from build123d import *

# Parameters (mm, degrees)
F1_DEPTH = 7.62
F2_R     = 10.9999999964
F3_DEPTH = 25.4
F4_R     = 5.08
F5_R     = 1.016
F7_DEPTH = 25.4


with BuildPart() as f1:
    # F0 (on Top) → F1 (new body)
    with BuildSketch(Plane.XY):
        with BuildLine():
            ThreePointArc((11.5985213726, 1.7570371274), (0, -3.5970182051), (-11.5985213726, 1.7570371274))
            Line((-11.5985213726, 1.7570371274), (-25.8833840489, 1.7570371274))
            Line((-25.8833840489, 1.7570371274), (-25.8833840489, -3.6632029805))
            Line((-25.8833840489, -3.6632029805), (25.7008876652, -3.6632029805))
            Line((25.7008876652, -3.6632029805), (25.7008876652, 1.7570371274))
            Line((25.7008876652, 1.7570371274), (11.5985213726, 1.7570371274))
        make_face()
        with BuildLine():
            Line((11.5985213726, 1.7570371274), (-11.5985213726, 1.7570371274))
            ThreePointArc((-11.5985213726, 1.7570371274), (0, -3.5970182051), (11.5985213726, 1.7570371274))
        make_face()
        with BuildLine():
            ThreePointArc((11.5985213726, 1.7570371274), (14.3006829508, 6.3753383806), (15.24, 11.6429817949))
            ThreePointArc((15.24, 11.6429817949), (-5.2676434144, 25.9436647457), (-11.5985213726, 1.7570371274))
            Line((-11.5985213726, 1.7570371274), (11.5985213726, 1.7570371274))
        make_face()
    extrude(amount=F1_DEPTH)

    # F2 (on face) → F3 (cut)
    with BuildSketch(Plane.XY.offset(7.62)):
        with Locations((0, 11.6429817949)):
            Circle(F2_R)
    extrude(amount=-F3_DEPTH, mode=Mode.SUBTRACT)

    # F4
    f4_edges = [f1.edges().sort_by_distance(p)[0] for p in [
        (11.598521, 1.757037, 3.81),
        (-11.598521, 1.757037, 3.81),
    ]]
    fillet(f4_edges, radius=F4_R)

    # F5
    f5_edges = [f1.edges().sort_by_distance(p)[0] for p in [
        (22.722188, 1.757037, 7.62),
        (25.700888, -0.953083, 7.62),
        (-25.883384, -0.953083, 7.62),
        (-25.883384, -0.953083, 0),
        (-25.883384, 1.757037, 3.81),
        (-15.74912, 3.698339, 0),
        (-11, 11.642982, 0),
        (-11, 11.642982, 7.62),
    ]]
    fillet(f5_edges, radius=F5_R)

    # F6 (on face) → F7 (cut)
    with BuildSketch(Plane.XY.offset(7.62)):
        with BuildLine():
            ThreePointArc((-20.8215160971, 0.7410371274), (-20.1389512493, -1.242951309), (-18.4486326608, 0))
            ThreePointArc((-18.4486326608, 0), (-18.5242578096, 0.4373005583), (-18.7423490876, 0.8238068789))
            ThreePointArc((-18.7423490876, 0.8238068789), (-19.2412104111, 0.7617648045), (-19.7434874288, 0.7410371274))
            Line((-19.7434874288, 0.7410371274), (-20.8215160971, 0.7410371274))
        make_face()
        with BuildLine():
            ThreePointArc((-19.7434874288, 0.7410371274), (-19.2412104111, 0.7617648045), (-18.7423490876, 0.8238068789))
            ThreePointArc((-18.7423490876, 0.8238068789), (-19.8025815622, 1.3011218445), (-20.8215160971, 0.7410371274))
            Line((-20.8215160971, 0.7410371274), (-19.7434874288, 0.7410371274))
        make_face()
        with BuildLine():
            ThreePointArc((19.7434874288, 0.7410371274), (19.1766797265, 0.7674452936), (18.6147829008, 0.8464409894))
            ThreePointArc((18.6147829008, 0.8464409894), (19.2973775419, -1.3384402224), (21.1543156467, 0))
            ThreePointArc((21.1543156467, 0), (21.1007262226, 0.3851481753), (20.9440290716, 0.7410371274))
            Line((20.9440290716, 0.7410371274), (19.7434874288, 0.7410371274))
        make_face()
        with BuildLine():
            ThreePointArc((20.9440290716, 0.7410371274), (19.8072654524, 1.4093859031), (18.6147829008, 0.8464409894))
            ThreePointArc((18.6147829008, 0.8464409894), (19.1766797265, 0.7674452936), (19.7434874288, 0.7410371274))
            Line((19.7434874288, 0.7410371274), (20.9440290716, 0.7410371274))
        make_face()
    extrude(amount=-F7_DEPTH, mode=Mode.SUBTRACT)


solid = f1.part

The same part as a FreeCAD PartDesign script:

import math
import FreeCAD as App
import Part
import Sketcher
from FreeCAD import Vector
Q = App.Units.Quantity


def edges_at(feature, points):
    """Names of the edges that pass closest to the given points."""
    edges = feature.Shape.Edges
    near = lambda p: min(range(len(edges)), key=lambda i: edges[i].distToShape(Part.Vertex(*p))[0])
    return sorted({f"Edge{near(p) + 1}" for p in points})

doc = App.newDocument("Part")
body = doc.addObject("PartDesign::Body", "Body")

# Sketch on XY plane
sketch1 = body.newObject("Sketcher::SketchObject", "Sketch")
sketch1.AttachmentSupport = (doc.getObject("XY_Plane"), [""])
sketch1.MapMode = "FlatFace"
sketch1.addGeometry([
    Part.LineSegment(Vector(-26, 2, 0), Vector(-26, -4, 0)),  # 0
    Part.LineSegment(Vector(-26, -4, 0), Vector(26, -4, 0)),  # 1
    Part.LineSegment(Vector(26, -4, 0), Vector(26, 2, 0)),  # 2
    Part.LineSegment(Vector(26, 2, 0), Vector(12, 2, 0)),  # 3
    Part.ArcOfCircle(Part.Circle(Vector(0, 12, 0), Vector(0, 0, 1), 15), math.radians(-40), math.radians(0)),  # 4
    Part.ArcOfCircle(Part.Circle(Vector(0, 12, 0), Vector(0, 0, 1), 15), math.radians(0), math.radians(220)),  # 5
    Part.LineSegment(Vector(-12, 2, 0), Vector(-26, 2, 0)),  # 6
], False)
sketch1.addConstraint([
    Sketcher.Constraint("Coincident", 0, 2, 1, 1),
    Sketcher.Constraint("Coincident", 1, 2, 2, 1),
    Sketcher.Constraint("Coincident", 2, 2, 3, 1),
    Sketcher.Constraint("Coincident", 3, 2, 4, 1),
    Sketcher.Constraint("Tangent", 4, 2, 5, 1),
    Sketcher.Constraint("Coincident", 5, 2, 6, 1),
    Sketcher.Constraint("Coincident", 6, 2, 0, 1),
    Sketcher.Constraint("Vertical", 0),
    Sketcher.Constraint("Horizontal", 1),
    Sketcher.Constraint("Vertical", 2),
    Sketcher.Constraint("Horizontal", 3),
    Sketcher.Constraint("Horizontal", 6),
    Sketcher.Constraint("Equal", 4, 5),
    Sketcher.Constraint("Symmetric", 3, 2, 5, 2, -2),
    Sketcher.Constraint("Horizontal", 5, 3, 4, 2),
    Sketcher.Constraint("Radius", 4, Q("0.6 in")),
    Sketcher.Constraint("DistanceX", 1, 1, 1, 2, 51.584272),
    Sketcher.Constraint("DistanceY", 0, 2, 0, 1, 5.42024),
    Sketcher.Constraint("DistanceX", 3, 2, 3, 1, 14.102366),
    Sketcher.Constraint("DistanceX", 6, 2, 6, 1, 14.284863),
    Sketcher.Constraint("DistanceY", -1, 1, 4, 3, 11.642982),
])
pad1 = body.newObject("PartDesign::Pad", "Pad")
pad1.Profile = sketch1
pad1.Length = Q("0.3 in")

# Sketch on XY plane
sketch2 = body.newObject("Sketcher::SketchObject", "Sketch001")
sketch2.AttachmentSupport = (doc.getObject("XY_Plane"), [""])
sketch2.MapMode = "FlatFace"
sketch2.AttachmentOffset = App.Placement(Vector(0, 0, 0.3 * 25.4), App.Rotation())
sketch2.addGeometry(Part.Circle(Vector(0, 12, 0), Vector(0, 0, 1), 11), False)
sketch2.addConstraint([
    Sketcher.Constraint("PointOnObject", 0, 3, -2),
    Sketcher.Constraint("Diameter", 0, 22.0),
    Sketcher.Constraint("DistanceY", -1, 1, 0, 3, 11.642982),
])
pocket1 = body.newObject("PartDesign::Pocket", "Pocket")
pocket1.Profile = sketch2
pocket1.Length = Q("1 in")
doc.recompute()

fillet = body.newObject("PartDesign::Fillet", "Fillet")
fillet.Base = (pocket1, edges_at(pocket1, [(11.599, 1.757, 3.81), (-11.599, 1.757, 3.81)]))
fillet.Radius = Q("0.2 in")
doc.recompute()

fillet2 = body.newObject("PartDesign::Fillet", "Fillet001")
fillet2.Base = (fillet, edges_at(fillet, [
    (22.722, 1.757, 7.62),
    (25.701, -0.953, 7.62),
    (-25.883, -0.953, 7.62),
    (-25.883, -0.953, 0),
    (-25.883, 1.757, 3.81),
    (-15.749, 3.698, 0),
    (-11, 11.643, 0),
    (-11, 11.643, 7.62),
]))
fillet2.Radius = Q("0.04 in")

# Sketch on XY plane
sketch3 = body.newObject("Sketcher::SketchObject", "Sketch002")
sketch3.AttachmentSupport = (doc.getObject("XY_Plane"), [""])
sketch3.MapMode = "FlatFace"
sketch3.AttachmentOffset = App.Placement(Vector(0, 0, 0.3 * 25.4), App.Rotation())
sketch3.addGeometry([
    Part.ArcOfCircle(Part.Circle(Vector(-19.8, 0, 0), Vector(0, 0, 1), 1.3), math.radians(145), math.radians(360)),  # 0
    Part.ArcOfCircle(Part.Circle(Vector(-19.8, 0, 0), Vector(0, 0, 1), 1.3), math.radians(0), math.radians(39)),  # 1
    Part.ArcOfCircle(Part.Circle(Vector(-19.8, 0, 0), Vector(0, 0, 1), 1.3), math.radians(39), math.radians(145)),  # 2
    Part.ArcOfCircle(Part.Circle(Vector(19.7, 0, 0), Vector(0, 0, 1), 1.4), math.radians(143), math.radians(360)),  # 3
    Part.ArcOfCircle(Part.Circle(Vector(19.7, 0, 0), Vector(0, 0, 1), 1.4), math.radians(0), math.radians(32)),  # 4
    Part.ArcOfCircle(Part.Circle(Vector(19.7, 0, 0), Vector(0, 0, 1), 1.4), math.radians(32), math.radians(143)),  # 5
], False)
sketch3.addConstraint([
    Sketcher.Constraint("Tangent", 0, 2, 1, 1),
    Sketcher.Constraint("Tangent", 1, 2, 2, 1),
    Sketcher.Constraint("Tangent", 2, 2, 0, 1),
    Sketcher.Constraint("Tangent", 3, 2, 4, 1),
    Sketcher.Constraint("Tangent", 4, 2, 5, 1),
    Sketcher.Constraint("Tangent", 5, 2, 3, 1),
    Sketcher.Constraint("PointOnObject", 0, 3, -1),
    Sketcher.Constraint("PointOnObject", 3, 3, -1),
    Sketcher.Constraint("PointOnObject", 0, 2, -1),
    Sketcher.Constraint("PointOnObject", 3, 2, -1),
    Sketcher.Constraint("Horizontal", 2, 2, 4, 2),
    Sketcher.Constraint("Radius", 3, 1.410828),
    Sketcher.Constraint("Radius", 0, 1.302152),
    Sketcher.Constraint("DistanceX", 1, 2, -1, 1, 18.742349),
    Sketcher.Constraint("DistanceX", -1, 1, 4, 2, 20.944029),
    Sketcher.Constraint("DistanceY", -1, 1, 5, 2, 0.846441),
    Sketcher.Constraint("DistanceX", 0, 2, 3, 3, 38.19212),
    Sketcher.Constraint("DistanceX", 2, 2, 0, 3, 1.070731),
])
pocket2 = body.newObject("PartDesign::Pocket", "Pocket001")
pocket2.Profile = sketch3
pocket2.Length = Q("1 in")

doc.recompute()
